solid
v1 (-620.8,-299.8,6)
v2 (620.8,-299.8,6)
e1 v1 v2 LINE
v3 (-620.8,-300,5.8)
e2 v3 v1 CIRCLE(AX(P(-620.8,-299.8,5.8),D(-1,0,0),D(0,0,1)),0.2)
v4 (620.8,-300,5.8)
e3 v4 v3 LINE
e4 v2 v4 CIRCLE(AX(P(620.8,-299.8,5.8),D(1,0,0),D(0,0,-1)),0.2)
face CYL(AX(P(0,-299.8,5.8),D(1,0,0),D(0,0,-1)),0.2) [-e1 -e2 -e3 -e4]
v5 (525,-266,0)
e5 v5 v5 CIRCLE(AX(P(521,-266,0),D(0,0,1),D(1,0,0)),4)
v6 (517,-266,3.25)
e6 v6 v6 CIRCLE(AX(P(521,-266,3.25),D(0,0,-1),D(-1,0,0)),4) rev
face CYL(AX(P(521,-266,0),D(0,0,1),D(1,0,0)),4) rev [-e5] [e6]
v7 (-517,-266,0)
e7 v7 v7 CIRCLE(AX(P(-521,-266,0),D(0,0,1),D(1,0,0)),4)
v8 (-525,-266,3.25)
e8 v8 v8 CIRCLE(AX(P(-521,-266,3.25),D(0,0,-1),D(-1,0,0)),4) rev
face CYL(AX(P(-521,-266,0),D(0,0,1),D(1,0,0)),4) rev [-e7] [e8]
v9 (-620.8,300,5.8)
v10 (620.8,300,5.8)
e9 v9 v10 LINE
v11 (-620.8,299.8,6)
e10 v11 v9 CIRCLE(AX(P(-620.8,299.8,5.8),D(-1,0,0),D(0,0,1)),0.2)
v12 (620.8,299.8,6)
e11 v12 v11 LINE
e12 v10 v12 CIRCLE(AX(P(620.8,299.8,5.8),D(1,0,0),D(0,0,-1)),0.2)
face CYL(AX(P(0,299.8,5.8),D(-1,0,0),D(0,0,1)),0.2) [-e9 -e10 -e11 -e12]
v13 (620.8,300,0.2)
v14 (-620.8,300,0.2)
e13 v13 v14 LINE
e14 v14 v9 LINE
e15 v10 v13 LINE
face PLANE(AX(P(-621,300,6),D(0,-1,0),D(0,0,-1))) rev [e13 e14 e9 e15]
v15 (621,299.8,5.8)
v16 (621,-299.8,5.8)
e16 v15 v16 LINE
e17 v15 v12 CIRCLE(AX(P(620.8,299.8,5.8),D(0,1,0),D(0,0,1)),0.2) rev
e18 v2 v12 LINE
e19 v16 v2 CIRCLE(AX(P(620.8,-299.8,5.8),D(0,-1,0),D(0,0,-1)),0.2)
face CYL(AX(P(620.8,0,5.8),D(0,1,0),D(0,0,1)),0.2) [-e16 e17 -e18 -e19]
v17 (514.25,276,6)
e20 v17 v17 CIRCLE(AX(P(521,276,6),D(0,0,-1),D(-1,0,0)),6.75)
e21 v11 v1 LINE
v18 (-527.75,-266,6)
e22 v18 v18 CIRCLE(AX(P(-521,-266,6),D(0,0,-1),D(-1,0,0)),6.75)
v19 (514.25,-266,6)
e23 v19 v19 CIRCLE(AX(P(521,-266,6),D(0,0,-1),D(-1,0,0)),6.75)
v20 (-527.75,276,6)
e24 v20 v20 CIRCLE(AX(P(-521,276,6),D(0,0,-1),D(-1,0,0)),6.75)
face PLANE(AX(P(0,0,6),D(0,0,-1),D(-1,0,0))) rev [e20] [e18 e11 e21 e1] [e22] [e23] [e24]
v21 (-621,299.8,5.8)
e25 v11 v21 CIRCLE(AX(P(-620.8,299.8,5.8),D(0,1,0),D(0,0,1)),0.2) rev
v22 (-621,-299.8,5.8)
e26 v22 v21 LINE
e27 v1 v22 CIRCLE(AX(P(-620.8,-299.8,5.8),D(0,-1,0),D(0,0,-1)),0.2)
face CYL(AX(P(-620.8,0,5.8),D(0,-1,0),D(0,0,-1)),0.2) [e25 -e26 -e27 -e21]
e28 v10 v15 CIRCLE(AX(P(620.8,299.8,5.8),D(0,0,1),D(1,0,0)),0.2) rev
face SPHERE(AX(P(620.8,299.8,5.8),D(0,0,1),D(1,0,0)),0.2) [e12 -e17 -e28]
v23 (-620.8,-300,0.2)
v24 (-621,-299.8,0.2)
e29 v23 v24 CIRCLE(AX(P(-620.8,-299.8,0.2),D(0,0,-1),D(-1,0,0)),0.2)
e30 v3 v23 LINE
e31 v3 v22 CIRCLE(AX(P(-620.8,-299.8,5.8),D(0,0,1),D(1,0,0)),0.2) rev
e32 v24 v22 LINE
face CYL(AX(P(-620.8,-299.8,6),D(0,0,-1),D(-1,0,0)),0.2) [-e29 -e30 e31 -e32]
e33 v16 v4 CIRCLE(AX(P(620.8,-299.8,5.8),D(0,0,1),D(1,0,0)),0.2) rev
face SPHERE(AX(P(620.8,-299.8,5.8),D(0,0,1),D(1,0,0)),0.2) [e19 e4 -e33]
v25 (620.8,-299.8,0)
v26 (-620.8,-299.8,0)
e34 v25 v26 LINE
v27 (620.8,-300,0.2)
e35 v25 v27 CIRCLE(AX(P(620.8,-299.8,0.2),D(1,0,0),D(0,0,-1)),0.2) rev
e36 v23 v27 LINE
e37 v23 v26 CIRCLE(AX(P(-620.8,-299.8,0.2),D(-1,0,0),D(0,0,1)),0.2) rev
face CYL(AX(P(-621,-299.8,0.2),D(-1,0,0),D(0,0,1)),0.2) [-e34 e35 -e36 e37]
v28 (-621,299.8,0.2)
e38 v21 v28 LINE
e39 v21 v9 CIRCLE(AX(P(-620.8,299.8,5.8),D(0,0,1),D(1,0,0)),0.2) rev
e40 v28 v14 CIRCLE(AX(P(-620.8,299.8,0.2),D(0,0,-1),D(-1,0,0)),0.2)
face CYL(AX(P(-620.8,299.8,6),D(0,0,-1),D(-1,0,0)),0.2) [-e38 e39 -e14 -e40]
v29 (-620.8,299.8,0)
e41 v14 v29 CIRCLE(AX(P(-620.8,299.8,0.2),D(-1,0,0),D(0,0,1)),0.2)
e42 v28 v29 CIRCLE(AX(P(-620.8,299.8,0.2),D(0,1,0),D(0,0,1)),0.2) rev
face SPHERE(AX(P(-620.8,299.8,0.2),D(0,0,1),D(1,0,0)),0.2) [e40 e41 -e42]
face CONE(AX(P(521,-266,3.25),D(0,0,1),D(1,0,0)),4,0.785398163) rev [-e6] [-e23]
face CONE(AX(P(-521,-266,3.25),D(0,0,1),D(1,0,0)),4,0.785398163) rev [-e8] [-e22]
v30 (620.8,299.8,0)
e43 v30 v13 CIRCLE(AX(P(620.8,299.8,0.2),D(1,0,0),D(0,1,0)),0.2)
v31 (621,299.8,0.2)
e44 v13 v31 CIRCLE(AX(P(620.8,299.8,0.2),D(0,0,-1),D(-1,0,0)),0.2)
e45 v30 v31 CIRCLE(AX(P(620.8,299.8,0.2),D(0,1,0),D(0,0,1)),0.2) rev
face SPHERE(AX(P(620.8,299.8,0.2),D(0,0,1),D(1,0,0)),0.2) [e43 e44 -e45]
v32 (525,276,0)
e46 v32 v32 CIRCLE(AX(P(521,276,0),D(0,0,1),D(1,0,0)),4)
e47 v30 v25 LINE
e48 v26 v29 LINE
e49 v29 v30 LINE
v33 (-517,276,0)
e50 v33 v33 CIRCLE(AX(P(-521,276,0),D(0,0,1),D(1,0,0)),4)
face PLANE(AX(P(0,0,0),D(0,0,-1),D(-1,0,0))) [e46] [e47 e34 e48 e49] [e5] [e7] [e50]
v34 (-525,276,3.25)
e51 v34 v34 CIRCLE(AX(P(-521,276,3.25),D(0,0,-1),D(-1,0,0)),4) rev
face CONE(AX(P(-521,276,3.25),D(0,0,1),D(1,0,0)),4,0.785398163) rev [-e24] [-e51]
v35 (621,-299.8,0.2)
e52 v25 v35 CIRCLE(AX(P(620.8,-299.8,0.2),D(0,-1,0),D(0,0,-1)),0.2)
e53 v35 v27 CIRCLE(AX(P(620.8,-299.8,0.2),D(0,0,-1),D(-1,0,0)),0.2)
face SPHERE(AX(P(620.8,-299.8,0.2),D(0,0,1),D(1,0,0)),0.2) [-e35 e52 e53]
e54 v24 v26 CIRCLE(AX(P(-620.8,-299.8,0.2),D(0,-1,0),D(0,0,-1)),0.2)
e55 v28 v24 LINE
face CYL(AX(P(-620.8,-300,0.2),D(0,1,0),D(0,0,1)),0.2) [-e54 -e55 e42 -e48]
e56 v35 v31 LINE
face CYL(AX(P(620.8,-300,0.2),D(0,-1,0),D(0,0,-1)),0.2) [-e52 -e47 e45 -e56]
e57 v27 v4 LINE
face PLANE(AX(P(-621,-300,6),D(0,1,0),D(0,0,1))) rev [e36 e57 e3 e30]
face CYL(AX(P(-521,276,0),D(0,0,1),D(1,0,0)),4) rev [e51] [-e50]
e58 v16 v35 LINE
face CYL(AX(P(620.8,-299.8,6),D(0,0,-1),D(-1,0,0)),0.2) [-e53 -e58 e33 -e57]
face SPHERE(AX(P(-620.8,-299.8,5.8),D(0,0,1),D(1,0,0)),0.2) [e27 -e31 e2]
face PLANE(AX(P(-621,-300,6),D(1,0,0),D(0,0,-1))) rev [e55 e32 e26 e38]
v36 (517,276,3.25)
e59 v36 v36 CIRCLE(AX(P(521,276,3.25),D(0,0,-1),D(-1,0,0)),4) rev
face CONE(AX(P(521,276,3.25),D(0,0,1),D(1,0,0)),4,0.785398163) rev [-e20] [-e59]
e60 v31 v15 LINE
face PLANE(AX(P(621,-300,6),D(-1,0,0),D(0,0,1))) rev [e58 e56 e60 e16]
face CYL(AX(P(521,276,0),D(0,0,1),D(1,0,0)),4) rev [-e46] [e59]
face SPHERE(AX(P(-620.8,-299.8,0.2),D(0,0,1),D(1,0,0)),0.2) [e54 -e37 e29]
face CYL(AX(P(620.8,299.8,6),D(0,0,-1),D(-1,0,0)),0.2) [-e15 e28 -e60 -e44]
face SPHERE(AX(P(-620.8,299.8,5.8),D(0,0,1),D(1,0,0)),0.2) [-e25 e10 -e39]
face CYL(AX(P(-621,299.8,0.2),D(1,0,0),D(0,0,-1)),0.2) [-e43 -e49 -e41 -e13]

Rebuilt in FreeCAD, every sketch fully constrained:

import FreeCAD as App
import Part
import Sketcher

V = App.Vector


def edges_at(feature, points):
    """Names of the edges that pass closest to the given points."""
    edges = feature.Shape.Edges
    near = lambda p: min(range(len(edges)), key=lambda i: edges[i].distToShape(Part.Vertex(*p))[0])
    return sorted({f"Edge{near(p) + 1}" for p in points})

doc = App.newDocument("Part")
body = doc.addObject("PartDesign::Body", "Body")

# Sketch on XY plane
sketch1 = body.newObject("Sketcher::SketchObject", "Sketch")
sketch1.AttachmentSupport = (doc.getObject("XY_Plane"), [""])
sketch1.MapMode = "FlatFace"
sketch1.addGeometry([
    Part.LineSegment(V(-621, 300, 0), V(-621, -300, 0)),
    Part.LineSegment(V(-621, -300, 0), V(621, -300, 0)),
    Part.LineSegment(V(621, -300, 0), V(621, 300, 0)),
    Part.LineSegment(V(621, 300, 0), V(-621, 300, 0)),
], False)
sketch1.addConstraint([
    Sketcher.Constraint("Coincident", 0, 2, 1, 1),
    Sketcher.Constraint("Coincident", 1, 2, 2, 1),
    Sketcher.Constraint("Coincident", 2, 2, 3, 1),
    Sketcher.Constraint("Coincident", 3, 2, 0, 1),
    Sketcher.Constraint("Vertical", 0),
    Sketcher.Constraint("Horizontal", 1),
    Sketcher.Constraint("Vertical", 2),
    Sketcher.Constraint("Horizontal", 3),
    Sketcher.Constraint("Symmetric", 0, 2, 2, 2, -1, 1),
    Sketcher.Constraint("DistanceX", 1, 1, 1, 2, 1242.0),
    Sketcher.Constraint("DistanceY", 0, 2, 0, 1, 600.0),
])
pad1 = body.newObject("PartDesign::Pad", "Pad")
pad1.Profile = sketch1
pad1.Length = 6

# Sketch on XY plane
sketch2 = body.newObject("Sketcher::SketchObject", "Sketch001")
sketch2.AttachmentSupport = (doc.getObject("XY_Plane"), [""])
sketch2.MapMode = "FlatFace"
sketch2.AttachmentOffset = App.Placement(V(0, 0, 6), App.Rotation())
sketch2.addGeometry([
    Part.Circle(V(-521, 276, 0), V(0, 0, 1), 4),
    Part.Circle(V(521, 276, 0), V(0, 0, 1), 4),
    Part.Circle(V(521, -266, 0), V(0, 0, 1), 4),
    Part.Circle(V(-521, -266, 0), V(0, 0, 1), 4),
], False)
sketch2.addConstraint([
    Sketcher.Constraint("Equal", 0, 1),
    Sketcher.Constraint("Equal", 1, 2),
    Sketcher.Constraint("Equal", 2, 3),
    Sketcher.Constraint("Symmetric", 0, 3, 1, 3, -2),
    Sketcher.Constraint("Symmetric", 2, 3, 3, 3, -2),
    Sketcher.Constraint("Vertical", 1, 3, 2, 3),
    Sketcher.Constraint("Diameter", 0, 8.0),
    Sketcher.Constraint("DistanceX", 0, 3, -1, 1, 521.0),
    Sketcher.Constraint("DistanceY", -1, 1, 0, 3, 276.0),
    Sketcher.Constraint("DistanceY", 2, 3, -1, 1, 266.0),
])
pocket1 = body.newObject("PartDesign::Pocket", "Pocket")
pocket1.Profile = sketch2
pocket1.Type = "ThroughAll"
doc.recompute()

chamfer = body.newObject("PartDesign::Chamfer", "Chamfer")
chamfer.Base = (pocket1, edges_at(pocket1, [
    (-525, 276, 6),
    (517, 276, 6),
    (517, -266, 6),
    (-525, -266, 6),
]))
chamfer.Size = 2.75
doc.recompute()

fillet = body.newObject("PartDesign::Fillet", "Fillet")
fillet.Base = (chamfer, edges_at(chamfer, [
    (-621, 0, 6),
    (0, -300, 6),
    (621, 0, 6),
    (0, -300, 0),
    (-621, 0, 0),
    (0, 300, 0),
    (621, 0, 0),
    (0, 300, 6),
    (621, -300, 3),
    (-621, -300, 3),
    (-621, 300, 3),
    (621, 300, 3),
]))
fillet.Radius = 0.2

doc.recompute()
